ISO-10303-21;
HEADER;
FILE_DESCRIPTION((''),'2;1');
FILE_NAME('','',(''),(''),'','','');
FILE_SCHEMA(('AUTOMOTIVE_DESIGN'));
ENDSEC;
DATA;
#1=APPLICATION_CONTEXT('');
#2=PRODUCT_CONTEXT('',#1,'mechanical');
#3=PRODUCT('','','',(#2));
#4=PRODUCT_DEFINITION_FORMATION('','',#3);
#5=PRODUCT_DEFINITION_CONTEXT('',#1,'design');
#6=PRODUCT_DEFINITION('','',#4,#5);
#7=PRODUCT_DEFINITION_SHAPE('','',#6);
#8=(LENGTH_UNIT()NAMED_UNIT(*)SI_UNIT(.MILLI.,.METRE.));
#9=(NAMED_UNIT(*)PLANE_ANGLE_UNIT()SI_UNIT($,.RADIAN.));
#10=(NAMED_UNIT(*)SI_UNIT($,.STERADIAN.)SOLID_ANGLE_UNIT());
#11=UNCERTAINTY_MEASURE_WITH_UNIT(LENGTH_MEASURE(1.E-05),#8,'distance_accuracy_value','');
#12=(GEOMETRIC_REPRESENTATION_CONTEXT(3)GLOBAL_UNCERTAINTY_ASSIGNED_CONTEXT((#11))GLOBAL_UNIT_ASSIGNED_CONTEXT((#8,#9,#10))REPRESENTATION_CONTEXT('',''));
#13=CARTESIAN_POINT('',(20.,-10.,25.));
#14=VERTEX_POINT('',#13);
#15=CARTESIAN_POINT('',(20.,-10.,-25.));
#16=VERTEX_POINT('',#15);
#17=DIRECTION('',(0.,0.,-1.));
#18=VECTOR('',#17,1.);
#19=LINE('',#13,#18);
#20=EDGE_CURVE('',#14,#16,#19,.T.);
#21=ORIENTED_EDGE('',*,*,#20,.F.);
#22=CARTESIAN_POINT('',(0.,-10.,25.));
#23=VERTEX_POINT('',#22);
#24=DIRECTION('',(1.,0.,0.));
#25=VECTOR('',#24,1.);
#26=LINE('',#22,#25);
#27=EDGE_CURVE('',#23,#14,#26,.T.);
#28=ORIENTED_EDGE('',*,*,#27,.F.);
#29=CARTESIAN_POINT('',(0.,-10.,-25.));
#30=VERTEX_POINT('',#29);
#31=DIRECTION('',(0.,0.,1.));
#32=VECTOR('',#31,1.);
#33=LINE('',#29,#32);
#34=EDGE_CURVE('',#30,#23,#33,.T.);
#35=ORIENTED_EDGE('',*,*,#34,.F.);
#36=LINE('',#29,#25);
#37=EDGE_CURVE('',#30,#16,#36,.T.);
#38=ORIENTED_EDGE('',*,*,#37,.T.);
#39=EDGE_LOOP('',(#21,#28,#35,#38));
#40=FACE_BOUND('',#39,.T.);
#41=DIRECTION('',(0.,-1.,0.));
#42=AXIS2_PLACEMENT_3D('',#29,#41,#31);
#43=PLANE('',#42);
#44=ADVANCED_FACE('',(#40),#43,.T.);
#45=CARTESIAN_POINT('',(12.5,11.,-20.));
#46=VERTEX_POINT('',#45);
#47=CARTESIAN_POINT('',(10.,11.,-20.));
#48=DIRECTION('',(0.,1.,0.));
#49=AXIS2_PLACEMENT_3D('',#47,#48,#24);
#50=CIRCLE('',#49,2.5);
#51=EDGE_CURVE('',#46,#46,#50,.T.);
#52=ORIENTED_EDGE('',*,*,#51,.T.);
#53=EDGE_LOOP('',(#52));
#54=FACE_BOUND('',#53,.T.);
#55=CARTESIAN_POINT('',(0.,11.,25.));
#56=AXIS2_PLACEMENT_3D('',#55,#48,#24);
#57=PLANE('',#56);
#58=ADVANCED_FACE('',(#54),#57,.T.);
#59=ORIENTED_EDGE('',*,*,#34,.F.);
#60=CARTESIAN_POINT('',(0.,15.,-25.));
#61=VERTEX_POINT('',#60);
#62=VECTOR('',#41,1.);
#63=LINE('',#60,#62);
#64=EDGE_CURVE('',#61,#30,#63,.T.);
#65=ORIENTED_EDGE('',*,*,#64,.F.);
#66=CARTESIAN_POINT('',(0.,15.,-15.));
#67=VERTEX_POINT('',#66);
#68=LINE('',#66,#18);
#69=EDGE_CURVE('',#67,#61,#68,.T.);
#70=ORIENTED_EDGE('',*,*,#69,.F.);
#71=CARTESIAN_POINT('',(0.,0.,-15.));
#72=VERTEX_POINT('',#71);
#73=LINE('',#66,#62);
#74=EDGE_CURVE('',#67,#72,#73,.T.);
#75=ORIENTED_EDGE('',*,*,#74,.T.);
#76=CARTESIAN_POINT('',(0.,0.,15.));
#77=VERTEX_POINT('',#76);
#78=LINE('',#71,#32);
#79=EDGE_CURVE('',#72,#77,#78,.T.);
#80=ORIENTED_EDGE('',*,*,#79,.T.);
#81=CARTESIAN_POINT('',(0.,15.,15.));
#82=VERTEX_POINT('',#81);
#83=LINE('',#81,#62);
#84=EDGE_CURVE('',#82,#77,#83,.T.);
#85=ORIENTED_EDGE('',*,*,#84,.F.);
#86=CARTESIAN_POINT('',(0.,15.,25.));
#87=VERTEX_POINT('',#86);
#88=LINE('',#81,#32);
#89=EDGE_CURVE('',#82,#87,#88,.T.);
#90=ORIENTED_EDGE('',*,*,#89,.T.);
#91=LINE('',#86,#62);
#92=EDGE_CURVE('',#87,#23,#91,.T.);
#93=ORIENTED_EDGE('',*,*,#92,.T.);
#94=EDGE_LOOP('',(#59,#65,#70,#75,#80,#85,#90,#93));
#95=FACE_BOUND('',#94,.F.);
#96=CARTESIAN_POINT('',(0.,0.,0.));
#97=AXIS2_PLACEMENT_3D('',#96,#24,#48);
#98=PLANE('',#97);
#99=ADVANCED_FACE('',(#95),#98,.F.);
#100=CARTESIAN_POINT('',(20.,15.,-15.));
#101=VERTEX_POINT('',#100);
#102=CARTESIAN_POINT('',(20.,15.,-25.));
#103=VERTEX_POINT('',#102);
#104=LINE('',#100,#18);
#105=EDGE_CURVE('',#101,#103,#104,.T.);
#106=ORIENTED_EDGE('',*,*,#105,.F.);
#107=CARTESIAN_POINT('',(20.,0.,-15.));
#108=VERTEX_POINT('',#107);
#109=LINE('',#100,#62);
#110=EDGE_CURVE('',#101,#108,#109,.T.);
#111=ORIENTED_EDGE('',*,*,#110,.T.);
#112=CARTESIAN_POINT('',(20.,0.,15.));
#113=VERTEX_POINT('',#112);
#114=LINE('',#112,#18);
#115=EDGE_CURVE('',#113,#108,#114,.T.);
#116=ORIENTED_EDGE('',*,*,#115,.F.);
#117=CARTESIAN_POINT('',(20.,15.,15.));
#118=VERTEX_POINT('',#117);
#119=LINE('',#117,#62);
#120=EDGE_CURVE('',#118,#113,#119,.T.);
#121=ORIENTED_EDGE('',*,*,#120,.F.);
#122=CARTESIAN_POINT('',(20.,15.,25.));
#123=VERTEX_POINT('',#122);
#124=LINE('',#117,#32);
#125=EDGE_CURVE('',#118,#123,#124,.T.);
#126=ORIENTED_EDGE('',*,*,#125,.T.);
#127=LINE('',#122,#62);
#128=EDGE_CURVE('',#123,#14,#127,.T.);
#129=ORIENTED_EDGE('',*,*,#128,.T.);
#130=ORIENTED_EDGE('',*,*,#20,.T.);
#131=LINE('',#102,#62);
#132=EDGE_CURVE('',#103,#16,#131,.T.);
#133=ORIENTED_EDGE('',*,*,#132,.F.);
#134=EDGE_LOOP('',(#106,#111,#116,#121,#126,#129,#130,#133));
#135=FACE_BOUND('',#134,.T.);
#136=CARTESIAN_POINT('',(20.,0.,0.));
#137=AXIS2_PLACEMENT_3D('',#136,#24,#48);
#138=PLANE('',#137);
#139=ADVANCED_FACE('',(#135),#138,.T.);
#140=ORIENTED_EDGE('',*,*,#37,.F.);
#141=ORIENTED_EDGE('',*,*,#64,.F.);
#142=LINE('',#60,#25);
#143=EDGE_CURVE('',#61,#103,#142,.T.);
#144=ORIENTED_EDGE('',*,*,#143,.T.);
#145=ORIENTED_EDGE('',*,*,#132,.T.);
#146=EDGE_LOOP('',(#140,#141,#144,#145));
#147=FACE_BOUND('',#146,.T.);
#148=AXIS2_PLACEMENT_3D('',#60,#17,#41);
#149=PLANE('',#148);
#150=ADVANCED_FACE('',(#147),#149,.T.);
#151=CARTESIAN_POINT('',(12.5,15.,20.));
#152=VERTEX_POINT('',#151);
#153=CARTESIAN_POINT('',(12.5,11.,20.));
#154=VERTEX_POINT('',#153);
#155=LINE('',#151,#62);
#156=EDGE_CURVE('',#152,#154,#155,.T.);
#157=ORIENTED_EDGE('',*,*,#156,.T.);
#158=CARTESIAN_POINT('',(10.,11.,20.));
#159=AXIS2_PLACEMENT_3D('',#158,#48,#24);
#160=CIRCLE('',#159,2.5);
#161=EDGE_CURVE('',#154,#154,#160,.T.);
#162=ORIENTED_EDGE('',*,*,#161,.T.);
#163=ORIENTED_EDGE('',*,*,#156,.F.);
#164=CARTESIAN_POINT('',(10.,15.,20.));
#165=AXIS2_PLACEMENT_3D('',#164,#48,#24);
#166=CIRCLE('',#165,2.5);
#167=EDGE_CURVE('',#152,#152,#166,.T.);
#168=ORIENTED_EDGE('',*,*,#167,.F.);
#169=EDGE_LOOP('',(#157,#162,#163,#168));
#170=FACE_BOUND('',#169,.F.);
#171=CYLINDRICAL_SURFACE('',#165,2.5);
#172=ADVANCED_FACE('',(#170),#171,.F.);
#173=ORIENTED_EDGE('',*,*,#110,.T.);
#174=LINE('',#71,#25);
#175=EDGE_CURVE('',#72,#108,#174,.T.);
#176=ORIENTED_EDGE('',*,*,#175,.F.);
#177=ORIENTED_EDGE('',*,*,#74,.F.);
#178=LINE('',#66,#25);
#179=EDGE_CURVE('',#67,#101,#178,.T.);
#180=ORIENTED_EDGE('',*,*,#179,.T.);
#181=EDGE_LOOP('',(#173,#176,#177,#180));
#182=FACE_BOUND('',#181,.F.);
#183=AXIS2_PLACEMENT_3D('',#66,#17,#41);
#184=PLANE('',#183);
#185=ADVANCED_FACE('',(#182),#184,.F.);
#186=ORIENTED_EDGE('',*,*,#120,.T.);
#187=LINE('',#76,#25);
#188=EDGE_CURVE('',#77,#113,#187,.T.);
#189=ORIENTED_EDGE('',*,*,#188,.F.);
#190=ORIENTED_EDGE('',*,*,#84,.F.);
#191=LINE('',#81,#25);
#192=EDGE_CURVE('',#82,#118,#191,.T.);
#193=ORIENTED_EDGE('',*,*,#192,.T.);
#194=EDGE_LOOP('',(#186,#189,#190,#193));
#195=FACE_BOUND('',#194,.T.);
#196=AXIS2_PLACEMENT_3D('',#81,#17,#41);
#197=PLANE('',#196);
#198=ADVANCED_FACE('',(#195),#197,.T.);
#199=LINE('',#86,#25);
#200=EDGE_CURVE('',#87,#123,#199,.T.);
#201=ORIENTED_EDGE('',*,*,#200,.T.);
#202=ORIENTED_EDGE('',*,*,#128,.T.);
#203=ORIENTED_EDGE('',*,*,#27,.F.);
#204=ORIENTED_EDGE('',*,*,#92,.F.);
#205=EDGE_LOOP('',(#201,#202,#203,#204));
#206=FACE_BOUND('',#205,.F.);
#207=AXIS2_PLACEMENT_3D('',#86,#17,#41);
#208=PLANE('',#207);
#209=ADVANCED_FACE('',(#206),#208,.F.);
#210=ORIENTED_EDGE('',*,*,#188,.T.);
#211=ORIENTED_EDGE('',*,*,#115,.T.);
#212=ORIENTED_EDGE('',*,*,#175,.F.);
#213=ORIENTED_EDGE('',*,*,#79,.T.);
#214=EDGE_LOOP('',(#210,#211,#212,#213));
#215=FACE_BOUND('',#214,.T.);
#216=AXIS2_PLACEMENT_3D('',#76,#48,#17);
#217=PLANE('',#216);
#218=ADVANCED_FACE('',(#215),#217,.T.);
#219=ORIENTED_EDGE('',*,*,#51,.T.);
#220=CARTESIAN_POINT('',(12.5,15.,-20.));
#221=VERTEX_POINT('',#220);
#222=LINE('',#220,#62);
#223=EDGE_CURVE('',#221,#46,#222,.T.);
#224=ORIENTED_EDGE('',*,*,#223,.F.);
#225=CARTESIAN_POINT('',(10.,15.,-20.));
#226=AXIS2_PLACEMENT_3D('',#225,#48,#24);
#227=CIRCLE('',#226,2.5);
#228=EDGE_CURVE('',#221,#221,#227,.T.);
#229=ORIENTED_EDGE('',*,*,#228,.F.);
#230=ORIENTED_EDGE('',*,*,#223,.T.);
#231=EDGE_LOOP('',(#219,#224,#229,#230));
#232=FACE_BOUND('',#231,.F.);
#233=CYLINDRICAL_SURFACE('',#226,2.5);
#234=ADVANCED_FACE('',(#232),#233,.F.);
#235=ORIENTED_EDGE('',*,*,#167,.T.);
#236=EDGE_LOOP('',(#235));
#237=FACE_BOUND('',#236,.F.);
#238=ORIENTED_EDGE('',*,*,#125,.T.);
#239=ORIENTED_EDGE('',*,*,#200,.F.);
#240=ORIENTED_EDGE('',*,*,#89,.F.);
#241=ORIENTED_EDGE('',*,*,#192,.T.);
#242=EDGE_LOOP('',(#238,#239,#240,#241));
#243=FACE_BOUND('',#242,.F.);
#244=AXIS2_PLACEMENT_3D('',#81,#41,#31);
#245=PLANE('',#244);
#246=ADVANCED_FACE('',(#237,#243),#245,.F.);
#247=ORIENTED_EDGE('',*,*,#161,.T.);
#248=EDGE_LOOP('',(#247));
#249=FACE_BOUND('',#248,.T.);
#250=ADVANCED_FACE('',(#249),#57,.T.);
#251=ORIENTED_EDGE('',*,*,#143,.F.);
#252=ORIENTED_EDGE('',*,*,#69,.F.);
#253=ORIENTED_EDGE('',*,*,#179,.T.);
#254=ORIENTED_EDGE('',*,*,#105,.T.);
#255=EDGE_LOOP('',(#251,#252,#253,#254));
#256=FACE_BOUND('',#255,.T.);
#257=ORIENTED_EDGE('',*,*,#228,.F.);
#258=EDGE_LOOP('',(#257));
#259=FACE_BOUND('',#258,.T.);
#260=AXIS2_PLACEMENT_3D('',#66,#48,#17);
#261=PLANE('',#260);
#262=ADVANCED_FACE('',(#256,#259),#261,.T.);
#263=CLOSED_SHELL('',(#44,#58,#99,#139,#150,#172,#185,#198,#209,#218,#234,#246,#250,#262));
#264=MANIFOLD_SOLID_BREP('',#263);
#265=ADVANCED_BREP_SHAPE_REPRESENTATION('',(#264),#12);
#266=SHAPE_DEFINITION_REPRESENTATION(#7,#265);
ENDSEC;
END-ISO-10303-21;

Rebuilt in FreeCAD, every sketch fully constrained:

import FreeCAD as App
import Part
import Sketcher

V = App.Vector

doc = App.newDocument("Part")
params = doc.addObject("Spreadsheet::Sheet", "Params")
for row, (alias, value) in enumerate([
    ("sketch1_width", "15 mm"),
    ("sketch1_width2", "25 mm"),
    ("sketch1_height", "10 mm"),
    ("pad1_length", "20 mm"),
    ("sketch2_diameter", "5 mm"),
    ("pocket1_length", "4 mm"),
], start=1):
    params.set(f"A{row}", alias)
    params.set(f"B{row}", "=" + value)
    params.setAlias(f"B{row}", alias)

body = doc.addObject("PartDesign::Body", "Body")

# Sketch on YZ plane
sketch1 = doc.addObject("Sketcher::SketchObject", "Sketch")
body.addObject(sketch1)
sketch1.AttachmentSupport = (doc.YZ_Plane, [""])
sketch1.MapMode = "FlatFace"
sketch1.addGeometry([
    Part.LineSegment(V(0, 15, 0), V(15, 15, 0)),  # 0
    Part.LineSegment(V(15, 15, 0), V(15, 25, 0)),  # 1
    Part.LineSegment(V(15, 25, 0), V(-10, 25, 0)),  # 2
    Part.LineSegment(V(-10, 25, 0), V(-10, -25, 0)),  # 3
    Part.LineSegment(V(-10, -25, 0), V(15, -25, 0)),  # 4
    Part.LineSegment(V(15, -25, 0), V(15, -15, 0)),  # 5
    Part.LineSegment(V(15, -15, 0), V(0, -15, 0)),  # 6
    Part.LineSegment(V(0, -15, 0), V(0, 15, 0)),  # 7
], False)
sketch1.addConstraint([
    Sketcher.Constraint("Coincident", 0, 2, 1, 1),
    Sketcher.Constraint("Coincident", 1, 2, 2, 1),
    Sketcher.Constraint("Coincident", 2, 2, 3, 1),
    Sketcher.Constraint("Coincident", 3, 2, 4, 1),
    Sketcher.Constraint("Coincident", 4, 2, 5, 1),
    Sketcher.Constraint("Coincident", 5, 2, 6, 1),
    Sketcher.Constraint("Coincident", 6, 2, 7, 1),
    Sketcher.Constraint("Coincident", 7, 2, 0, 1),
    Sketcher.Constraint("Horizontal", 0),
    Sketcher.Constraint("Vertical", 1),
    Sketcher.Constraint("Horizontal", 2),
    Sketcher.Constraint("Vertical", 3),
    Sketcher.Constraint("Horizontal", 4),
    Sketcher.Constraint("Vertical", 5),
    Sketcher.Constraint("Horizontal", 6),
    Sketcher.Constraint("Vertical", 7),
    Sketcher.Constraint("Symmetric", 6, 2, 7, 2, -1, 1),
    Sketcher.Constraint("Symmetric", 1, 2, 4, 2, -1),
    Sketcher.Constraint("DistanceX", 0, 1, 0, 2, 15.0),
    Sketcher.Constraint("DistanceX", 2, 2, 2, 1, 25.0),
    Sketcher.Constraint("DistanceY", 1, 1, 1, 2, 10.0),
    Sketcher.Constraint("DistanceY", -1, 1, 0, 2, 15.0),
])
sketch1.setExpression("Constraints[18]", "Params.sketch1_width")
sketch1.setExpression("Constraints[19]", "Params.sketch1_width2")
sketch1.setExpression("Constraints[20]", "Params.sketch1_height")
pad1 = doc.addObject("PartDesign::Pad", "Pad")
body.addObject(pad1)
pad1.Profile = sketch1
pad1.setExpression("Length", "Params.pad1_length")

# Sketch on XZ plane
sketch2 = doc.addObject("Sketcher::SketchObject", "Sketch001")
body.addObject(sketch2)
sketch2.AttachmentSupport = (doc.XZ_Plane, [""])
sketch2.MapMode = "FlatFace"
sketch2.AttachmentOffset = App.Placement(V(0, 0, -15), App.Rotation())
sketch2.addGeometry([
    Part.Circle(V(10, 20, 0), V(0, 0, 1), 2.5),
    Part.Circle(V(10, -20, 0), V(0, 0, 1), 2.5),
], False)
sketch2.addConstraint([
    Sketcher.Constraint("Equal", 0, 1),
    Sketcher.Constraint("Symmetric", 0, 3, 1, 3, -1),
    Sketcher.Constraint("Diameter", 0, 5.0),
    Sketcher.Constraint("DistanceX", -1, 1, 0, 3, 10.0),
    Sketcher.Constraint("DistanceY", -1, 1, 0, 3, 20.0),
])
sketch2.setExpression("Constraints[2]", "Params.sketch2_diameter")
pocket1 = doc.addObject("PartDesign::Pocket", "Pocket")
body.addObject(pocket1)
pocket1.Profile = sketch2
pocket1.setExpression("Length", "Params.pocket1_length")
pocket1.Reversed = True

doc.recompute()
